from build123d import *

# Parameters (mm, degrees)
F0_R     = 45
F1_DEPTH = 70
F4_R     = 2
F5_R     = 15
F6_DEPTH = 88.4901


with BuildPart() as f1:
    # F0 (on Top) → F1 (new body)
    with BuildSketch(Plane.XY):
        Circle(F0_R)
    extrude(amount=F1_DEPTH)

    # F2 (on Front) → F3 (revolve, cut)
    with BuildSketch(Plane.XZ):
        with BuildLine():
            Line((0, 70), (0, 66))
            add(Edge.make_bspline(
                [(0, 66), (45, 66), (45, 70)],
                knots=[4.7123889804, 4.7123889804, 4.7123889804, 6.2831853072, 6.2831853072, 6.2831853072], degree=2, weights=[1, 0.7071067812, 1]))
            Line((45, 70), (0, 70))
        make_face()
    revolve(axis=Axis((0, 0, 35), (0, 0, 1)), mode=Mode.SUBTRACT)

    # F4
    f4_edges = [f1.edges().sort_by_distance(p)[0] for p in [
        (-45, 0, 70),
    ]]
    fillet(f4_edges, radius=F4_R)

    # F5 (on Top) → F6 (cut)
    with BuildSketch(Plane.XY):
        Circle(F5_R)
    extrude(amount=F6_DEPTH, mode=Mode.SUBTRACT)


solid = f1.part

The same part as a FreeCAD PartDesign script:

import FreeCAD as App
import Part
import Sketcher

V = App.Vector
Q = App.Units.Quantity


def edges_at(feature, points):
    """Names of the edges that pass closest to the given points."""
    edges = feature.Shape.Edges
    near = lambda p: min(range(len(edges)), key=lambda i: edges[i].distToShape(Part.Vertex(*p))[0])
    return sorted({f"Edge{near(p) + 1}" for p in points})

doc = App.newDocument("Part")
params = doc.addObject("Spreadsheet::Sheet", "Params")
for row, (alias, value) in enumerate([
    ("sketch1_diameter", "90 mm"),
    ("pad1_length", "70 mm"),
    ("groove_angle", "360 deg"),
    ("fillet_radius", "2 mm"),
    ("sketch3_diameter", "30 mm"),
    ("pocket1_length", "88.4901 mm"),
], start=1):
    params.set(f"A{row}", alias)
    params.set(f"B{row}", "=" + value)
    params.setAlias(f"B{row}", alias)

body = doc.addObject("PartDesign::Body", "Body")

# Sketch on XY plane
sketch1 = doc.addObject("Sketcher::SketchObject", "Sketch")
body.addObject(sketch1)
sketch1.AttachmentSupport = (doc.XY_Plane, [""])
sketch1.MapMode = "FlatFace"
sketch1.addGeometry(Part.Circle(V(0, 0, 0), V(0, 0, 1), 45), False)
sketch1.addConstraint(Sketcher.Constraint("Coincident", 0, 3, -1, 1))
sketch1.addConstraint(Sketcher.Constraint("Diameter", 0, Q("90 mm")))
sketch1.setExpression("Constraints[1]", "Params.sketch1_diameter")
pad1 = doc.addObject("PartDesign::Pad", "Pad")
body.addObject(pad1)
pad1.Profile = sketch1
pad1.setExpression("Length", "Params.pad1_length")

# Sketch on XZ plane
sketch2 = doc.addObject("Sketcher::SketchObject", "Sketch001")
body.addObject(sketch2)
sketch2.AttachmentSupport = (doc.XZ_Plane, [""])
sketch2.MapMode = "FlatFace"
sketch2.addGeometry(Part.LineSegment(V(0, 70, 0), V(0, 66, 0)), False)
sketch2.addGeometry(Part.BSplineCurve([V(0, 66, 0), V(45, 66, 0), V(45, 70, 0)], [3, 3], [4.71238898, 6.283185307], False, 2, [1, 0.707106781, 1], False), False)
sketch2.addGeometry(Part.LineSegment(V(45, 70, 0), V(0, 70, 0)), False)
sketch2.addConstraint(Sketcher.Constraint("Block", 1))
sketch2.addConstraint(Sketcher.Constraint("Coincident", 0, 2, 1, 1))
sketch2.addConstraint(Sketcher.Constraint("Coincident", 1, 2, 2, 1))
sketch2.addConstraint(Sketcher.Constraint("Coincident", 2, 2, 0, 1))
sketch2.addConstraint(Sketcher.Constraint("Vertical", 0))
sketch2.addConstraint(Sketcher.Constraint("Horizontal", 2))
groove = doc.addObject("PartDesign::Groove", "Groove")
body.addObject(groove)
groove.Profile = sketch2
groove.ReferenceAxis = (sketch2, ["V_Axis"])
groove.setExpression("Angle", "Params.groove_angle")
doc.recompute()

fillet = doc.addObject("PartDesign::Fillet", "Fillet")
body.addObject(fillet)
fillet.Base = (groove, edges_at(groove, [(-45, 0, 70)]))
fillet.setExpression("Radius", "Params.fillet_radius")

# Sketch on XY plane
sketch3 = doc.addObject("Sketcher::SketchObject", "Sketch002")
body.addObject(sketch3)
sketch3.AttachmentSupport = (doc.XY_Plane, [""])
sketch3.MapMode = "FlatFace"
sketch3.addGeometry(Part.Circle(V(0, 0, 0), V(0, 0, 1), 15), False)
sketch3.addConstraint(Sketcher.Constraint("Coincident", 0, 3, -1, 1))
sketch3.addConstraint(Sketcher.Constraint("Diameter", 0, Q("30 mm")))
sketch3.setExpression("Constraints[1]", "Params.sketch3_diameter")
pocket1 = doc.addObject("PartDesign::Pocket", "Pocket")
body.addObject(pocket1)
pocket1.Profile = sketch3
pocket1.setExpression("Length", "Params.pocket1_length")
pocket1.Reversed = True

doc.recompute()
